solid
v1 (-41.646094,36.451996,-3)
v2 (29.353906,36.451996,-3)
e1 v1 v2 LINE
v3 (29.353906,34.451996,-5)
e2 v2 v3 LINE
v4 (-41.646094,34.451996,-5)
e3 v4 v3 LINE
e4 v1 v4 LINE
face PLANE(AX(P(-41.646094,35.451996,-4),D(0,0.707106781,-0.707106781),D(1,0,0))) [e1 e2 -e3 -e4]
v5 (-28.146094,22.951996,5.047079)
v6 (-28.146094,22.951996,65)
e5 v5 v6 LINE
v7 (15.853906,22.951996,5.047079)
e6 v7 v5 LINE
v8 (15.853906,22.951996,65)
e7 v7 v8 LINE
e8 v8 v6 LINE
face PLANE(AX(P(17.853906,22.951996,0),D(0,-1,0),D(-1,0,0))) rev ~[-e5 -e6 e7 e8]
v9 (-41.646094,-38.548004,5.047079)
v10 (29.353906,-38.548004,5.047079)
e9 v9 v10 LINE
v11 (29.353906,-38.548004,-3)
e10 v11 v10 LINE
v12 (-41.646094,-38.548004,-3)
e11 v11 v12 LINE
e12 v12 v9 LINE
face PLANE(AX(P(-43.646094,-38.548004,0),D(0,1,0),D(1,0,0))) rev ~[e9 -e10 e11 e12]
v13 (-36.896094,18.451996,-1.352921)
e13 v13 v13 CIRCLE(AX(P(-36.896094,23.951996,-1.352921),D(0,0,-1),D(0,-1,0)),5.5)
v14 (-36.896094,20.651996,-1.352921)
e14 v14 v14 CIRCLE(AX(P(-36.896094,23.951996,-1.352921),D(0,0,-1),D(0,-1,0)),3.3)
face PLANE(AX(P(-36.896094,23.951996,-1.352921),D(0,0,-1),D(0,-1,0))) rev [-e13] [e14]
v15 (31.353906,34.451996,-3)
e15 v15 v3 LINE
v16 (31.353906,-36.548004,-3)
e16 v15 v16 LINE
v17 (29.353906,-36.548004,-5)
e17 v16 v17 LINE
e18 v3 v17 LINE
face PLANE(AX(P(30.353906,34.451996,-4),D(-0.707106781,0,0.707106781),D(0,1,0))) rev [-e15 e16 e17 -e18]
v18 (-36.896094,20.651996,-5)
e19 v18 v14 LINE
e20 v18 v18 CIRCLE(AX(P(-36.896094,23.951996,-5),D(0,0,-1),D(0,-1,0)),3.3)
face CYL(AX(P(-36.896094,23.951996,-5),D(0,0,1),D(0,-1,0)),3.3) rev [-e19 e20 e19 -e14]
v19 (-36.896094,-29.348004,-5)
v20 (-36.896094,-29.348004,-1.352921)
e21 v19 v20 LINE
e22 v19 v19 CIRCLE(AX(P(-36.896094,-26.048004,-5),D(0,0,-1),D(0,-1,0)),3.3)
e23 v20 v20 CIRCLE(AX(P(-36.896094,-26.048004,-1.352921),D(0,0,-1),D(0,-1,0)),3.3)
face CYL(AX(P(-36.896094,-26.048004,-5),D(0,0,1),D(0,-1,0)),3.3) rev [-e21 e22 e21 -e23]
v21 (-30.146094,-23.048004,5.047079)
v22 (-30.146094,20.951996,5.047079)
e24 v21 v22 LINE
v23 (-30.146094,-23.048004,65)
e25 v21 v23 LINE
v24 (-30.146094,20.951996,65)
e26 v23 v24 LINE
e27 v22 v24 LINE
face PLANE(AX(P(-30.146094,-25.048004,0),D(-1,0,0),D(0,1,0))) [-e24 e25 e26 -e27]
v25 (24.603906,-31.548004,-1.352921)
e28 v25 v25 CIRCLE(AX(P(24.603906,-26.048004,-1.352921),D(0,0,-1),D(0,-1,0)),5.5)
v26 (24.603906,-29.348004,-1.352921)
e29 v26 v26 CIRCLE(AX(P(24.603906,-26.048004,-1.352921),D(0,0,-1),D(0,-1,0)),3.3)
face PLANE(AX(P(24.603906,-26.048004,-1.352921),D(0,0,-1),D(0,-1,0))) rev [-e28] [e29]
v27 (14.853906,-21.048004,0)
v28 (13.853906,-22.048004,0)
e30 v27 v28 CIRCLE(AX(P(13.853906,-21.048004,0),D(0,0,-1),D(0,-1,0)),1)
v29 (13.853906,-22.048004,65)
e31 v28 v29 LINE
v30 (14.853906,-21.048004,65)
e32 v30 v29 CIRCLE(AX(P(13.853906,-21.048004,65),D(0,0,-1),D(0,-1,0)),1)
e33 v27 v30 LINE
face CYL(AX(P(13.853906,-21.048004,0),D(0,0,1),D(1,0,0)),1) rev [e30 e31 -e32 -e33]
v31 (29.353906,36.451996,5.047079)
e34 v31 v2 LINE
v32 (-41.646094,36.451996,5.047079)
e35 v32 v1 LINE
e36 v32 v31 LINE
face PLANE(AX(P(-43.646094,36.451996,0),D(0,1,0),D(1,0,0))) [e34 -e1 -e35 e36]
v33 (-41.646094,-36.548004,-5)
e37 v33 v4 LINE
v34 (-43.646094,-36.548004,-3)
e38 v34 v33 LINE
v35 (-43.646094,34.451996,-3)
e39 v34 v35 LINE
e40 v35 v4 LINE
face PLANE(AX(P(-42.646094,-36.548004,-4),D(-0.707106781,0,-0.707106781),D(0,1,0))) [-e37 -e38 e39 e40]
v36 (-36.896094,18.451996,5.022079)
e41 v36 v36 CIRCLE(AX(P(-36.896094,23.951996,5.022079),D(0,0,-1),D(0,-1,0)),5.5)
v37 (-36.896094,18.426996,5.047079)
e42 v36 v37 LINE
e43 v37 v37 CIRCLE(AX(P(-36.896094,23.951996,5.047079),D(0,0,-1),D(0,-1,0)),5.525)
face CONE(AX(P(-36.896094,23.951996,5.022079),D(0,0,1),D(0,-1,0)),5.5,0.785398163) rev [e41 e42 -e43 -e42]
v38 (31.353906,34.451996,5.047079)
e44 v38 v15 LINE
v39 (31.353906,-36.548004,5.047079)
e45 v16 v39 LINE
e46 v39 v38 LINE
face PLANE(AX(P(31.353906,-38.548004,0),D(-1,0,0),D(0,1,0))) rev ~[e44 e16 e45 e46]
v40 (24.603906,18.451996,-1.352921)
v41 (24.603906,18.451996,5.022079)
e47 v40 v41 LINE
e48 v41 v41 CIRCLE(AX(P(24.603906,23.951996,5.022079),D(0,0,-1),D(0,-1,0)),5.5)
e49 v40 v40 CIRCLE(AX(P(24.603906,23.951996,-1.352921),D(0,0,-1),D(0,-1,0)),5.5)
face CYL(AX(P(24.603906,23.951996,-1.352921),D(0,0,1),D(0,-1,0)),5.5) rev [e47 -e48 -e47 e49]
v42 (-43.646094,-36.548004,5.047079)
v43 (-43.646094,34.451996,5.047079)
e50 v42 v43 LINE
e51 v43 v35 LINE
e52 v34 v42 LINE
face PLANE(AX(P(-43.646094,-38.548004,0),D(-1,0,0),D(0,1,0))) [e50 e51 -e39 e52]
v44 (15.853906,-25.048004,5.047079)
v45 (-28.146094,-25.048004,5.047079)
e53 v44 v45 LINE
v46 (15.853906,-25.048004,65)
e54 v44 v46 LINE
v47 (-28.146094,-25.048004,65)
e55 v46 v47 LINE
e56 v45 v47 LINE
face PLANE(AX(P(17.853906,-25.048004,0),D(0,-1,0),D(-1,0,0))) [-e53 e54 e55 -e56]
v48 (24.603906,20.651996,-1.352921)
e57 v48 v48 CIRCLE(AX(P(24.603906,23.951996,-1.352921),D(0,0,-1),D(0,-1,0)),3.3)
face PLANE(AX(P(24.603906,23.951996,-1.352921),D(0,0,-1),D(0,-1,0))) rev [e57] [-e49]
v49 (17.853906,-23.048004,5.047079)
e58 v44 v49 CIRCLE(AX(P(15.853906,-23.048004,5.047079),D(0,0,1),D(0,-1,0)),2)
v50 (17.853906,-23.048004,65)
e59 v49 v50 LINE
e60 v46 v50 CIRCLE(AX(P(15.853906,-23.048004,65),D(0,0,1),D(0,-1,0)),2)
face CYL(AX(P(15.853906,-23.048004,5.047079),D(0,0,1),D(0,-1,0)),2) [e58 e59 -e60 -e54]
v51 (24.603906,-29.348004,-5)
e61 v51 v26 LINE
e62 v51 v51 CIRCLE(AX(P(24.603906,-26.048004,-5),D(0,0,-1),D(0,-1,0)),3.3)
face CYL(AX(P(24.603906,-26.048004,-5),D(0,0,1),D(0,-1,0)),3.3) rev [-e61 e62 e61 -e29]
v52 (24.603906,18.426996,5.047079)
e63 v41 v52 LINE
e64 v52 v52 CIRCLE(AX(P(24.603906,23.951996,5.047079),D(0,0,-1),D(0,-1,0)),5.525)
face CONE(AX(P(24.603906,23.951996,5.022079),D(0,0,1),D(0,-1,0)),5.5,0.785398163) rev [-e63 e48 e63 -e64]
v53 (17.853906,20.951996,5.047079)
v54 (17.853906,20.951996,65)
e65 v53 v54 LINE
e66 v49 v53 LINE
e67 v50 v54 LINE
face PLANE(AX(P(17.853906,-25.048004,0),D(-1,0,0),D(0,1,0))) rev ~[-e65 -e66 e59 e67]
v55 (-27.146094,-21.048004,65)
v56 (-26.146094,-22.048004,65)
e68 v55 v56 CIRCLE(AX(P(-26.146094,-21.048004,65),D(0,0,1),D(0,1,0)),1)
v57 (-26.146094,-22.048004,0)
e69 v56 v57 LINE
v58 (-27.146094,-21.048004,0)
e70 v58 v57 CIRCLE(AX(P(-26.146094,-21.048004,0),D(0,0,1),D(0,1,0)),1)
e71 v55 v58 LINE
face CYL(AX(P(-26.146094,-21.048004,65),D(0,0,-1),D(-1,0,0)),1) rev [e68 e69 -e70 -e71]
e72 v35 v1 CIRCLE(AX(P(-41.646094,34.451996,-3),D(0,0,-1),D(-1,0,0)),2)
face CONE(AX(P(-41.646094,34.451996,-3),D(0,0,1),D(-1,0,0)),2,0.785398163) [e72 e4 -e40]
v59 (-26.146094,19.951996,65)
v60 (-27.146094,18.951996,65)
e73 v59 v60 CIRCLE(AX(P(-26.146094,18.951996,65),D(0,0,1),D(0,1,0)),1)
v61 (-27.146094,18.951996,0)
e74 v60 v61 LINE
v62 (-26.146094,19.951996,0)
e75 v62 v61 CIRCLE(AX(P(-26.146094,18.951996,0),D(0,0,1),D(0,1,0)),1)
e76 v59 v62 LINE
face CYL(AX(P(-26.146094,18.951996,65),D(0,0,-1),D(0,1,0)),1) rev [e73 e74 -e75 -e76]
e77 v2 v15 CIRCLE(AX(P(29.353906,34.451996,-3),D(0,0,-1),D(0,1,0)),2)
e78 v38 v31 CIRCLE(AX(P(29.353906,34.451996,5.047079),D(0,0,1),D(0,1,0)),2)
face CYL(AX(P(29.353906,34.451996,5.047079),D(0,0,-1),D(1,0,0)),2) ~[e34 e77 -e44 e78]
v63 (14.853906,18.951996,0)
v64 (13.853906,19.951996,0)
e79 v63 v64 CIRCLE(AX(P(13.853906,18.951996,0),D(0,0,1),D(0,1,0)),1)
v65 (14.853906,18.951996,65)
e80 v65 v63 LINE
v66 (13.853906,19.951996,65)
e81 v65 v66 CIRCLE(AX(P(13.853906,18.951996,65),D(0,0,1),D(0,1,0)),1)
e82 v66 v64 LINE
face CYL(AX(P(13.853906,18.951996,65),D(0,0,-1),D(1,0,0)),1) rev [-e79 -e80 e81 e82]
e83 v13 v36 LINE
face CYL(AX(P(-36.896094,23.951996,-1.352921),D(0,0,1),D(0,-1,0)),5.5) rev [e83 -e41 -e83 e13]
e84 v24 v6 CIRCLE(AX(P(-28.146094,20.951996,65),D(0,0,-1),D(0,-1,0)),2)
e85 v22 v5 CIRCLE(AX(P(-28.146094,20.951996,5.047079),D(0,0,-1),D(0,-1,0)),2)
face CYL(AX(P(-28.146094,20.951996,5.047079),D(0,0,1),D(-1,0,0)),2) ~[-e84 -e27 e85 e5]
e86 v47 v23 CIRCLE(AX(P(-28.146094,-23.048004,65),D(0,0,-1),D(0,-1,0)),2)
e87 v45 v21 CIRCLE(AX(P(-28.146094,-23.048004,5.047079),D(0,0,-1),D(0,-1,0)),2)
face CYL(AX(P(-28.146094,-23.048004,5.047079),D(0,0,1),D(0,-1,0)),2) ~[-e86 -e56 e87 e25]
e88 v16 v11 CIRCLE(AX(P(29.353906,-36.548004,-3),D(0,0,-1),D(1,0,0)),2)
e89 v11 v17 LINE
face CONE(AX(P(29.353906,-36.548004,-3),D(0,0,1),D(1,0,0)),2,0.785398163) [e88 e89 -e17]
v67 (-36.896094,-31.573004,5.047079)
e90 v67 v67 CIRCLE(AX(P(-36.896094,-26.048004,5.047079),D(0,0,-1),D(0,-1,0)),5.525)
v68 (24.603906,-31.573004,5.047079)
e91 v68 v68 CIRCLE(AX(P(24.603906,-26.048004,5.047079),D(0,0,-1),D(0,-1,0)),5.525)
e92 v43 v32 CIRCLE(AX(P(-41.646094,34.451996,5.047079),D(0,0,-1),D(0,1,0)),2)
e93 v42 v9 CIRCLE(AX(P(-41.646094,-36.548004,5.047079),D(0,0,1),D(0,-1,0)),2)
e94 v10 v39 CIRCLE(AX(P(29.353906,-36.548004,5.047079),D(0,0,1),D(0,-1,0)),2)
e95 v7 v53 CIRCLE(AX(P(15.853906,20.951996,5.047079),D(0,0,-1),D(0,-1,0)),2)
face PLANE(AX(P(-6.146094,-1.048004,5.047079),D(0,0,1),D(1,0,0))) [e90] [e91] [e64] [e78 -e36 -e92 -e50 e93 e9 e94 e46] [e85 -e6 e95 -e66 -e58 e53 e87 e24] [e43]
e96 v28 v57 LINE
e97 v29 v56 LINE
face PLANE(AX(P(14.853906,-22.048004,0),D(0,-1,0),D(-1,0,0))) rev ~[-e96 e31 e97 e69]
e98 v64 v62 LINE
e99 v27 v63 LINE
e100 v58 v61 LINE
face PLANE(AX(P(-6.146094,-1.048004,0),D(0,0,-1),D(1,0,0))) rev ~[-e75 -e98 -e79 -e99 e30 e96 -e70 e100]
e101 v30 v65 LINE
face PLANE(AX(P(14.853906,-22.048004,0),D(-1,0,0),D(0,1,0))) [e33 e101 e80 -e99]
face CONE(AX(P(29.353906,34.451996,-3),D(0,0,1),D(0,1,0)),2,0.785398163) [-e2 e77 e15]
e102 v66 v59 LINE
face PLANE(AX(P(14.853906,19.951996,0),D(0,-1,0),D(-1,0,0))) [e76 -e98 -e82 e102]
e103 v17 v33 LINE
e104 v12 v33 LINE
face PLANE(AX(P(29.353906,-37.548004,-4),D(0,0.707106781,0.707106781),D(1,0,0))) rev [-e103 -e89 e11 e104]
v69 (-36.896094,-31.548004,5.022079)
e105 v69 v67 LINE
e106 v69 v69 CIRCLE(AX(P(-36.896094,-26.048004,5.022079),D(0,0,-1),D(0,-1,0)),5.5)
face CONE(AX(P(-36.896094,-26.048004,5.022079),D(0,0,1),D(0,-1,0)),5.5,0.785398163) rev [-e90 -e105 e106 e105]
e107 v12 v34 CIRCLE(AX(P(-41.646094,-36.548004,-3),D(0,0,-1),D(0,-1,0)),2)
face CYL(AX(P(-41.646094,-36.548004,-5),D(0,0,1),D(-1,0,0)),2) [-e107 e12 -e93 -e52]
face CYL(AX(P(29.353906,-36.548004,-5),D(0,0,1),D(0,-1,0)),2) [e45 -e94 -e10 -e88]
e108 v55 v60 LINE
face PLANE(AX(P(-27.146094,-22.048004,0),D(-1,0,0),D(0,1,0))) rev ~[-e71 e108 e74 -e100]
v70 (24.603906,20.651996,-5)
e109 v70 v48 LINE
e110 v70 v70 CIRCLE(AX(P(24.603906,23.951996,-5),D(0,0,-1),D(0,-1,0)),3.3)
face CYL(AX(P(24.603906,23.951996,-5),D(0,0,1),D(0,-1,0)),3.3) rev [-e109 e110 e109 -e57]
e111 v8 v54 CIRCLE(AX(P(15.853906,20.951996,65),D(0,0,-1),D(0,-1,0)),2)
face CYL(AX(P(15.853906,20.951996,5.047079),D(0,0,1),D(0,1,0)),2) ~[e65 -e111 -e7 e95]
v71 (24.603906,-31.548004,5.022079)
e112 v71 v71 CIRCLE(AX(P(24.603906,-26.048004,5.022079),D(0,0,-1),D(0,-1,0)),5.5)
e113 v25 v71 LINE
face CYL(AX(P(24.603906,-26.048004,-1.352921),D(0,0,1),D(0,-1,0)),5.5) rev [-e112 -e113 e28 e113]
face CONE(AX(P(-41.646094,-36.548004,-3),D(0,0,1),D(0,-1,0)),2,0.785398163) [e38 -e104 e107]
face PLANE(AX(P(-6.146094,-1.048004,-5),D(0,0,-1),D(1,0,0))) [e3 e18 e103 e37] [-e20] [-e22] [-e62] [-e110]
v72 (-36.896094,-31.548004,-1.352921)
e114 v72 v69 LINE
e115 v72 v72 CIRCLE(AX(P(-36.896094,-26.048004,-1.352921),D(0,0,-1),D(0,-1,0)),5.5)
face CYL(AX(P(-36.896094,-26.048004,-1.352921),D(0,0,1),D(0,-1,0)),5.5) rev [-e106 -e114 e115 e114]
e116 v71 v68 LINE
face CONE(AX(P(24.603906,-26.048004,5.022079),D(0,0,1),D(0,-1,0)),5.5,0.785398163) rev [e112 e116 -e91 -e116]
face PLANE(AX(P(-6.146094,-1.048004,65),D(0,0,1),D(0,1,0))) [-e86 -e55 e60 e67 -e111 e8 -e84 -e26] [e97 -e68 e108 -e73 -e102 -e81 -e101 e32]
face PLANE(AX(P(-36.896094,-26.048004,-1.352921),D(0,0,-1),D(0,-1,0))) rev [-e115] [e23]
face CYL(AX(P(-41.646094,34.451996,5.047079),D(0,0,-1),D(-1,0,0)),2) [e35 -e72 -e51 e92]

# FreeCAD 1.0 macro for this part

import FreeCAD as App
import Part
import Sketcher
from FreeCAD import Vector
Q = App.Units.Quantity


def edges_at(feature, points):
    """Names of the edges that pass closest to the given points."""
    edges = feature.Shape.Edges
    near = lambda p: min(range(len(edges)), key=lambda i: edges[i].distToShape(Part.Vertex(*p))[0])
    return sorted({f"Edge{near(p) + 1}" for p in points})

doc = App.newDocument("Part")
body = doc.addObject("PartDesign::Body", "Body")

# Sketch on XY plane
sketch1 = body.newObject("Sketcher::SketchObject", "Sketch")
sketch1.AttachmentSupport = (doc.getObject("XY_Plane"), [""])
sketch1.MapMode = "FlatFace"
sketch1.addGeometry([
    Part.LineSegment(Vector(-30, -25, 0), Vector(18, -25, 0)),  # 0
    Part.LineSegment(Vector(18, -25, 0), Vector(18, 23, 0)),  # 1
    Part.LineSegment(Vector(18, 23, 0), Vector(-30, 23, 0)),  # 2
    Part.LineSegment(Vector(-30, 23, 0), Vector(-30, -25, 0)),  # 3
    Part.LineSegment(Vector(15, 20, 0), Vector(15, -22, 0)),  # 4
    Part.LineSegment(Vector(15, -22, 0), Vector(-27, -22, 0)),  # 5
    Part.LineSegment(Vector(-27, -22, 0), Vector(-27, 20, 0)),  # 6
    Part.LineSegment(Vector(-27, 20, 0), Vector(15, 20, 0)),  # 7
], False)
sketch1.addConstraint([
    Sketcher.Constraint("Coincident", 0, 2, 1, 1),
    Sketcher.Constraint("Coincident", 1, 2, 2, 1),
    Sketcher.Constraint("Coincident", 2, 2, 3, 1),
    Sketcher.Constraint("Coincident", 3, 2, 0, 1),
    Sketcher.Constraint("Coincident", 4, 2, 5, 1),
    Sketcher.Constraint("Coincident", 5, 2, 6, 1),
    Sketcher.Constraint("Coincident", 6, 2, 7, 1),
    Sketcher.Constraint("Coincident", 7, 2, 4, 1),
    Sketcher.Constraint("Horizontal", 0),
    Sketcher.Constraint("Vertical", 1),
    Sketcher.Constraint("Horizontal", 2),
    Sketcher.Constraint("Vertical", 3),
    Sketcher.Constraint("Vertical", 4),
    Sketcher.Constraint("Horizontal", 5),
    Sketcher.Constraint("Vertical", 6),
    Sketcher.Constraint("Horizontal", 7),
    Sketcher.Constraint("Equal", 2, 1),
    Sketcher.Constraint("Equal", 7, 4),
    Sketcher.Constraint("DistanceX", 0, 1, 0, 2, Q("48 mm")),
    Sketcher.Constraint("DistanceX", 5, 2, 5, 1, Q("42 mm")),
    Sketcher.Constraint("DistanceX", 4, 2, 0, 2, Q("3 mm")),
    Sketcher.Constraint("DistanceY", 0, 2, 4, 2, Q("3 mm")),
    Sketcher.Constraint("DistanceX", -1, 1, 0, 2, Q("17.853906 mm")),
    Sketcher.Constraint("DistanceY", 0, 2, -1, 1, Q("25.048004 mm")),
])
pad1 = body.newObject("PartDesign::Pad", "Pad")
pad1.Profile = sketch1
pad1.Length = 65

# Sketch on XY plane
sketch2 = body.newObject("Sketcher::SketchObject", "Sketch001")
sketch2.AttachmentSupport = (doc.getObject("XY_Plane"), [""])
sketch2.MapMode = "FlatFace"
sketch2.addGeometry([
    Part.LineSegment(Vector(-44, -39, 0), Vector(-44, 36, 0)),
    Part.LineSegment(Vector(-44, 36, 0), Vector(31, 36, 0)),
    Part.LineSegment(Vector(31, 36, 0), Vector(31, -39, 0)),
    Part.LineSegment(Vector(31, -39, 0), Vector(-44, -39, 0)),
], False)
sketch2.addConstraint([
    Sketcher.Constraint("Coincident", 0, 2, 1, 1),
    Sketcher.Constraint("Coincident", 1, 2, 2, 1),
    Sketcher.Constraint("Coincident", 2, 2, 3, 1),
    Sketcher.Constraint("Coincident", 3, 2, 0, 1),
    Sketcher.Constraint("Vertical", 0),
    Sketcher.Constraint("Horizontal", 1),
    Sketcher.Constraint("Vertical", 2),
    Sketcher.Constraint("Horizontal", 3),
    Sketcher.Constraint("Equal", 3, 0),
    Sketcher.Constraint("DistanceX", 1, 1, 1, 2, Q("75 mm")),
    Sketcher.Constraint("DistanceX", 0, 2, -1, 1, Q("43.646094 mm")),
    Sketcher.Constraint("DistanceY", -1, 1, 0, 2, Q("36.451996 mm")),
])
pad2 = body.newObject("PartDesign::Pad", "Pad001")
pad2.Profile = sketch2
pad2.Length = 5
pad2.Reversed = True

# Sketch on XY plane
sketch3 = body.newObject("Sketcher::SketchObject", "Sketch002")
sketch3.AttachmentSupport = (doc.getObject("XY_Plane"), [""])
sketch3.MapMode = "FlatFace"
sketch3.addGeometry([
    Part.LineSegment(Vector(-44, 36, 0), Vector(-44, -39, 0)),  # 0
    Part.LineSegment(Vector(-44, -39, 0), Vector(31, -39, 0)),  # 1
    Part.LineSegment(Vector(31, -39, 0), Vector(31, 36, 0)),  # 2
    Part.LineSegment(Vector(31, 36, 0), Vector(-44, 36, 0)),  # 3
    Part.LineSegment(Vector(15, -22, 0), Vector(-27, -22, 0)),  # 4
    Part.LineSegment(Vector(-27, -22, 0), Vector(-27, 20, 0)),  # 5
    Part.LineSegment(Vector(-27, 20, 0), Vector(15, 20, 0)),  # 6
    Part.LineSegment(Vector(15, 20, 0), Vector(15, -22, 0)),  # 7
], False)
sketch3.addConstraint([
    Sketcher.Constraint("Coincident", 0, 2, 1, 1),
    Sketcher.Constraint("Coincident", 1, 2, 2, 1),
    Sketcher.Constraint("Coincident", 2, 2, 3, 1),
    Sketcher.Constraint("Coincident", 3, 2, 0, 1),
    Sketcher.Constraint("Coincident", 4, 2, 5, 1),
    Sketcher.Constraint("Coincident", 5, 2, 6, 1),
    Sketcher.Constraint("Coincident", 6, 2, 7, 1),
    Sketcher.Constraint("Coincident", 7, 2, 4, 1),
    Sketcher.Constraint("Vertical", 0),
    Sketcher.Constraint("Horizontal", 1),
    Sketcher.Constraint("Vertical", 2),
    Sketcher.Constraint("Horizontal", 3),
    Sketcher.Constraint("Horizontal", 4),
    Sketcher.Constraint("Vertical", 5),
    Sketcher.Constraint("Horizontal", 6),
    Sketcher.Constraint("Vertical", 7),
    Sketcher.Constraint("Equal", 3, 0),
    Sketcher.Constraint("Equal", 6, 5),
    Sketcher.Constraint("DistanceX", 1, 1, 1, 2, Q("75 mm")),
    Sketcher.Constraint("DistanceX", 4, 2, 4, 1, Q("42 mm")),
    Sketcher.Constraint("DistanceX", 0, 2, 4, 2, Q("16.5 mm")),
    Sketcher.Constraint("DistanceY", 0, 2, 4, 2, Q("16.5 mm")),
    Sketcher.Constraint("DistanceX", 0, 2, -1, 1, Q("43.646094 mm")),
    Sketcher.Constraint("DistanceY", 0, 2, -1, 1, Q("38.548004 mm")),
])
pad3 = body.newObject("PartDesign::Pad", "Pad002")
pad3.Profile = sketch3
pad3.Length = 5.047079
doc.recompute()

fillet = body.newObject("PartDesign::Fillet", "Fillet")
fillet.Base = (pad3, edges_at(pad3, [
    (17.854, 22.952, 35.024),
    (17.854, -25.048, 35.024),
    (-30.146, -25.048, 35.024),
    (-30.146, 22.952, 35.024),
    (-43.646, -38.548, 0.024),
    (31.354, -38.548, 0.024),
    (31.354, 36.452, 0.024),
    (-43.646, 36.452, 0.024),
]))
fillet.Radius = 2

# Sketch on YZ plane
sketch4 = body.newObject("Sketcher::SketchObject", "Sketch003")
sketch4.AttachmentSupport = (doc.getObject("YZ_Plane"), [""])
sketch4.MapMode = "FlatFace"
sketch4.AttachmentOffset = App.Placement(Vector(0, 0, -36.896094), App.Rotation())
sketch4.addGeometry([
    Part.LineSegment(Vector(23.952, -5, 0), Vector(23.952, 5.047, 0)),  # 0
    Part.LineSegment(Vector(23.952, 5.047, 0), Vector(18.427, 5.047, 0)),  # 1
    Part.LineSegment(Vector(18.427, 5.047, 0), Vector(18.452, 5.022, 0)),  # 2
    Part.LineSegment(Vector(18.452, 5.022, 0), Vector(18.452, -1.353, 0)),  # 3
    Part.LineSegment(Vector(18.452, -1.353, 0), Vector(20.652, -1.353, 0)),  # 4
    Part.LineSegment(Vector(20.652, -1.353, 0), Vector(20.652, -5, 0)),  # 5
    Part.LineSegment(Vector(20.652, -5, 0), Vector(23.952, -5, 0)),  # 6
], False)
sketch4.addGeometry(Part.LineSegment(Vector(23.952, 5.047, 0), Vector(23.952, -5, 0)), True)  # axis
sketch4.addConstraint([
    Sketcher.Constraint("Coincident", 0, 2, 1, 1),
    Sketcher.Constraint("Coincident", 1, 2, 2, 1),
    Sketcher.Constraint("Coincident", 2, 2, 3, 1),
    Sketcher.Constraint("Coincident", 3, 2, 4, 1),
    Sketcher.Constraint("Coincident", 4, 2, 5, 1),
    Sketcher.Constraint("Coincident", 5, 2, 6, 1),
    Sketcher.Constraint("Coincident", 6, 2, 0, 1),
    Sketcher.Constraint("Vertical", 0),
    Sketcher.Constraint("Horizontal", 1),
    Sketcher.Constraint("Vertical", 3),
    Sketcher.Constraint("Horizontal", 4),
    Sketcher.Constraint("Vertical", 5),
    Sketcher.Constraint("Horizontal", 6),
    Sketcher.Constraint("Vertical", 7),
    Sketcher.Constraint("Coincident", 7, 1, 0, 2),
    Sketcher.Constraint("Horizontal", 5, 2, 7, 2),
    Sketcher.Constraint("Angle", 2, Q("-45 deg")),
    Sketcher.Constraint("DistanceX", 4, 1, 4, 2, Q("2.2 mm")),
    Sketcher.Constraint("DistanceX", 6, 1, 6, 2, Q("3.3 mm")),
    Sketcher.Constraint("DistanceY", 5, 2, -1, 1, Q("5 mm")),
    Sketcher.Constraint("DistanceY", 3, 2, 1, 2, Q("6.4 mm")),
    Sketcher.Constraint("DistanceX", 1, 2, 1, 1, Q("5.525 mm")),
    Sketcher.Constraint("DistanceY", 0, 1, 0, 2, Q("10.047079 mm")),
    Sketcher.Constraint("DistanceX", -1, 1, 0, 2, Q("23.951996 mm")),
])
groove = body.newObject("PartDesign::Groove", "Groove")
groove.Profile = sketch4
groove.ReferenceAxis = (sketch4, ["Axis0"])
groove.Angle = 360
doc.recompute()

linearpattern = body.newObject("PartDesign::LinearPattern", "LinearPattern")
linearpattern.Originals = [groove]
linearpattern.Direction = (doc.getObject("Y_Axis"), [""])
linearpattern.Mode = "offset"
linearpattern.Offset = 50
linearpattern.Occurrences = 2
linearpattern.Reversed = True
body.Tip = linearpattern
doc.recompute()

linearpattern2 = body.newObject("PartDesign::LinearPattern", "LinearPattern001")
linearpattern2.Originals = [groove]
linearpattern2.Direction = (doc.getObject("X_Axis"), [""])
linearpattern2.Mode = "offset"
linearpattern2.Offset = 61.5
linearpattern2.Occurrences = 2
body.Tip = linearpattern2
doc.recompute()

datumline = body.newObject("PartDesign::Line", "DatumLine")
datumline.Placement = App.Placement(Vector(0, 0, 0), App.Rotation(Vector(0, 0, 1), Vector(0.775921004, -0.630830085, 0)))
linearpattern3 = body.newObject("PartDesign::LinearPattern", "LinearPattern002")
linearpattern3.Originals = [groove]
linearpattern3.Direction = (datumline, [""])
linearpattern3.Mode = "offset"
linearpattern3.Offset = 79.260646
linearpattern3.Occurrences = 2
body.Tip = linearpattern3
doc.recompute()

fillet2 = body.newObject("PartDesign::Fillet", "Fillet001")
fillet2.Base = (linearpattern3, edges_at(linearpattern3, [
    (14.854, -22.048, 32.5),
    (14.854, 19.952, 32.5),
    (-27.146, 19.952, 32.5),
    (-27.146, -22.048, 32.5),
]))
fillet2.Radius = 1
doc.recompute()

chamfer = body.newObject("PartDesign::Chamfer", "Chamfer")
chamfer.Base = (fillet2, edges_at(fillet2, [
    (-6.146, 36.452, -5),
    (-6.146, -38.548, -5),
    (-43.646, -1.048, -5),
    (30.768, -37.962, -5),
    (-43.06, -37.962, -5),
    (-43.06, 35.866, -5),
    (30.768, 35.866, -5),
    (31.354, -1.048, -5),
]))
chamfer.Size = 2

doc.recompute()
